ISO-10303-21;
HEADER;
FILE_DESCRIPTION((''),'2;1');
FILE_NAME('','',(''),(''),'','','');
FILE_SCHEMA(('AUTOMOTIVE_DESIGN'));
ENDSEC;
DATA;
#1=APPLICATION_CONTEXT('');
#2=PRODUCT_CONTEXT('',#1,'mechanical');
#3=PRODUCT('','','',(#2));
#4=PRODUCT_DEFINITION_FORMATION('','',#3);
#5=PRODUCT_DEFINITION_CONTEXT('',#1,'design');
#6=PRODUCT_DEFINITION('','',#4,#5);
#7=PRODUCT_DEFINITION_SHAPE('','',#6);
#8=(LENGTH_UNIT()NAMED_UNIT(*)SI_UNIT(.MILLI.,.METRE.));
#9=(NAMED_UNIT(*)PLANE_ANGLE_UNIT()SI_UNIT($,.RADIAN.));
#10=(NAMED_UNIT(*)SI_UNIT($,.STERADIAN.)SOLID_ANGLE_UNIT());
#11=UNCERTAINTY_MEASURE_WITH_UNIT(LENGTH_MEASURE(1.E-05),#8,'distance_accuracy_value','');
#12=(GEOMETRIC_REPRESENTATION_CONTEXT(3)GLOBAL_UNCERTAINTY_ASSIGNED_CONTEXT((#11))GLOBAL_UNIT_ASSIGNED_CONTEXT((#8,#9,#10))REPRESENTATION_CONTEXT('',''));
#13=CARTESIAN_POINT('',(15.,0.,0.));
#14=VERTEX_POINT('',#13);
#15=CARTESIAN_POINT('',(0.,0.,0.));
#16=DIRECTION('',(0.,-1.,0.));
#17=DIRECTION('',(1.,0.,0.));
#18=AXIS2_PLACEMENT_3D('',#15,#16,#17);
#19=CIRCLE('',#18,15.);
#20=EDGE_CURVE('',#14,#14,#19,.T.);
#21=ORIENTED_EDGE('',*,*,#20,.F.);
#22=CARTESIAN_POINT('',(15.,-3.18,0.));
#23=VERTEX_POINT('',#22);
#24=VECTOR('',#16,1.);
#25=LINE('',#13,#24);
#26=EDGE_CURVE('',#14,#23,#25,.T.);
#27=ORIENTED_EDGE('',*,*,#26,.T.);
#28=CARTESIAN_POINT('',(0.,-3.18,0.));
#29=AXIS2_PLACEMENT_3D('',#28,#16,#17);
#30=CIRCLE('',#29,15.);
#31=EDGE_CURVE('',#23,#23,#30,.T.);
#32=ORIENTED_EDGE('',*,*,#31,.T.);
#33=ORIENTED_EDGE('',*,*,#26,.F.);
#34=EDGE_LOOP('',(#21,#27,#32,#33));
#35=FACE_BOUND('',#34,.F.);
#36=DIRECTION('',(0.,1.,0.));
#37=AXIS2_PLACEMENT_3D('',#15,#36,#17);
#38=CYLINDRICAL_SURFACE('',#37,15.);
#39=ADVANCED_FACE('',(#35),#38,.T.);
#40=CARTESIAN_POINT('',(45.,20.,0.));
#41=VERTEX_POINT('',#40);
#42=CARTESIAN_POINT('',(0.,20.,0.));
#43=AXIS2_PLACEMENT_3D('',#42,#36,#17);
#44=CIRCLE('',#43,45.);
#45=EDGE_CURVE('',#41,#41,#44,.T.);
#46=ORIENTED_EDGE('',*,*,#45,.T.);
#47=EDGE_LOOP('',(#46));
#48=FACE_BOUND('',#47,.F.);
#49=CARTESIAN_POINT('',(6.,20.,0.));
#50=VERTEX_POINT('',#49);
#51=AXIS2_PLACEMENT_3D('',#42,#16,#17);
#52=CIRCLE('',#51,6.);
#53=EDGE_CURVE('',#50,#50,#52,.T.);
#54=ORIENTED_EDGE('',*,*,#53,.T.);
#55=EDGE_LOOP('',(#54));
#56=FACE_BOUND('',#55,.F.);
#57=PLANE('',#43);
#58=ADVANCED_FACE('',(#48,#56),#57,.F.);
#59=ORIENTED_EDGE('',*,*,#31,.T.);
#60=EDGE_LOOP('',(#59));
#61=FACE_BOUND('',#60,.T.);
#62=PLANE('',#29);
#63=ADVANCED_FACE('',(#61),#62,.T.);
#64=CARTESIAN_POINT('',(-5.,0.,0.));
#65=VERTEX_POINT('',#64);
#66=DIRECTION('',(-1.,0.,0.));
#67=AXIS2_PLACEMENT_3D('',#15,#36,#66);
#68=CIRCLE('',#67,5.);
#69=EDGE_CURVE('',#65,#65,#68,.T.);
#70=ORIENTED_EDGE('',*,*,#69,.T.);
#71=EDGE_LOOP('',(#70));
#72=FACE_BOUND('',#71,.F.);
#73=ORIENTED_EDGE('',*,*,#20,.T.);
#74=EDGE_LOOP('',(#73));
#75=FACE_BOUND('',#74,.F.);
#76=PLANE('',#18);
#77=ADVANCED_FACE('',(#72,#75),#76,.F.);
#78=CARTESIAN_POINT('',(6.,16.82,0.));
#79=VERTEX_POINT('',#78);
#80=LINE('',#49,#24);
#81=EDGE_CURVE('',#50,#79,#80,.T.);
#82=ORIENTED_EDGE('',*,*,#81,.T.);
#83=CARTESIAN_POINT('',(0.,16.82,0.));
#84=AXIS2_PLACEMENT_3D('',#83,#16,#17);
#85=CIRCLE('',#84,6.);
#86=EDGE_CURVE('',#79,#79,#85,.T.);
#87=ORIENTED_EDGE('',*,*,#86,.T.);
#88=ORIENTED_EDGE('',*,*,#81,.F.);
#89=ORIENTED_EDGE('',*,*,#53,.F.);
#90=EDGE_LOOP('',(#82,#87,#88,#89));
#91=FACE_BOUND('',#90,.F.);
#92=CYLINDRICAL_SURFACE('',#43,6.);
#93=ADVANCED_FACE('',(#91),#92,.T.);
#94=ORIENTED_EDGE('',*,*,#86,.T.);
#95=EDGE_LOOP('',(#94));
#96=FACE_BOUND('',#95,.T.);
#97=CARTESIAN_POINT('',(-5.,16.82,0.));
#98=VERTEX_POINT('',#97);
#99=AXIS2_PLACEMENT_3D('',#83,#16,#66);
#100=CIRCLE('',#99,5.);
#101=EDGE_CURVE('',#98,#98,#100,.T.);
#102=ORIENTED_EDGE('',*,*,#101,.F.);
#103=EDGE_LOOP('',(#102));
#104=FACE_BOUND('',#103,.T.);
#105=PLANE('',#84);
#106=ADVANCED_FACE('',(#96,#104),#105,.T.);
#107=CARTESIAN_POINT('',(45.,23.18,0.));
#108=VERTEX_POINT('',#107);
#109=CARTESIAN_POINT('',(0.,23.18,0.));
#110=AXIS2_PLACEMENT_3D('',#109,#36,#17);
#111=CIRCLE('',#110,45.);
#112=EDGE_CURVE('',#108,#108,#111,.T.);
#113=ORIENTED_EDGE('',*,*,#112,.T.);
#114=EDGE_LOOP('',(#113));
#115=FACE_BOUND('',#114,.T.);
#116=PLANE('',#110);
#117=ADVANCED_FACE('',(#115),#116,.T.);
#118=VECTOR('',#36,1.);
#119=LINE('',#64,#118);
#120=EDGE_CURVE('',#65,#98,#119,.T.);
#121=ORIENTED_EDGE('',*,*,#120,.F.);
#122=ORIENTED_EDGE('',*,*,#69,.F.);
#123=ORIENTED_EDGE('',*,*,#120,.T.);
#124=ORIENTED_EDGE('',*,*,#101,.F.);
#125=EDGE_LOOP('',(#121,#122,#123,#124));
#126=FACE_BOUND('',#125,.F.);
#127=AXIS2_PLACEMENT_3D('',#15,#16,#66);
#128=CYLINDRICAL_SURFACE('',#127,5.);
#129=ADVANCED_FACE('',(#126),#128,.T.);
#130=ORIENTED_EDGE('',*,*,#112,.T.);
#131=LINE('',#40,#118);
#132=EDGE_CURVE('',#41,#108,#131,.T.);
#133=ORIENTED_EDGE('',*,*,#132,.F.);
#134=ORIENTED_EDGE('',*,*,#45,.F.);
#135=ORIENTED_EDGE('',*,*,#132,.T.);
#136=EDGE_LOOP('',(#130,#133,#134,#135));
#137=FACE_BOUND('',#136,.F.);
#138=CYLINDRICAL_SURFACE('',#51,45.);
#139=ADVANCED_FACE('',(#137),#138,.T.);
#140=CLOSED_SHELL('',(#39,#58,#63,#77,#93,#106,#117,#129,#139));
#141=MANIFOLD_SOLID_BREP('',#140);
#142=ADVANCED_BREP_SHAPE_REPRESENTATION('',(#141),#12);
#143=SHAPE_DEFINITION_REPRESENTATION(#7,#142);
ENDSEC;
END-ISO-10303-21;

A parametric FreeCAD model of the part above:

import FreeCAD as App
import Part
import Sketcher
from FreeCAD import Vector
Q = App.Units.Quantity

doc = App.newDocument("Part")
params = doc.addObject("Spreadsheet::Sheet", "Params")
for row, (alias, value) in enumerate([
    ("sketch1_diameter", "10 mm"),
    ("pad1_length", "20 mm"),
    ("sketch2_diameter", "90 mm"),
    ("pad2_length", "3.18 mm"),
    ("sketch3_diameter", "30 mm"),
    ("pad3_length", "3.18 mm"),
    ("sketch4_diameter", "12 mm"),
    ("pad4_length", "3.18 mm"),
], start=1):
    params.set(f"A{row}", alias)
    params.set(f"B{row}", "=" + value)
    params.setAlias(f"B{row}", alias)

body = doc.addObject("PartDesign::Body", "Body")

# Sketch on XZ plane
sketch1 = doc.addObject("Sketcher::SketchObject", "Sketch")
body.addObject(sketch1)
sketch1.AttachmentSupport = (doc.XZ_Plane, [""])
sketch1.MapMode = "FlatFace"
sketch1.addGeometry(Part.Circle(Vector(0, 0, 0), Vector(0, 0, 1), 5), False)
sketch1.addConstraint([
    Sketcher.Constraint("Coincident", 0, 3, -1, 1),
    Sketcher.Constraint("Diameter", 0, Q("10 mm")),
])
sketch1.setExpression("Constraints[1]", "Params.sketch1_diameter")
pad1 = doc.addObject("PartDesign::Pad", "Pad")
body.addObject(pad1)
pad1.Profile = sketch1
pad1.setExpression("Length", "Params.pad1_length")
pad1.Reversed = True

# Sketch on XZ plane
sketch2 = doc.addObject("Sketcher::SketchObject", "Sketch001")
body.addObject(sketch2)
sketch2.AttachmentSupport = (doc.XZ_Plane, [""])
sketch2.MapMode = "FlatFace"
sketch2.AttachmentOffset = App.Placement(Vector(0, 0, -20), App.Rotation())
sketch2.addGeometry(Part.Circle(Vector(0, 0, 0), Vector(0, 0, 1), 45), False)
sketch2.addConstraint([
    Sketcher.Constraint("Coincident", 0, 3, -1, 1),
    Sketcher.Constraint("Diameter", 0, Q("90 mm")),
])
sketch2.setExpression("Constraints[1]", "Params.sketch2_diameter")
pad2 = doc.addObject("PartDesign::Pad", "Pad001")
body.addObject(pad2)
pad2.Profile = sketch2
pad2.setExpression("Length", "Params.pad2_length")
pad2.Reversed = True

# Sketch on XZ plane
sketch3 = doc.addObject("Sketcher::SketchObject", "Sketch002")
body.addObject(sketch3)
sketch3.AttachmentSupport = (doc.XZ_Plane, [""])
sketch3.MapMode = "FlatFace"
sketch3.addGeometry(Part.Circle(Vector(0, 0, 0), Vector(0, 0, 1), 15), False)
sketch3.addConstraint([
    Sketcher.Constraint("Coincident", 0, 3, -1, 1),
    Sketcher.Constraint("Diameter", 0, Q("30 mm")),
])
sketch3.setExpression("Constraints[1]", "Params.sketch3_diameter")
pad3 = doc.addObject("PartDesign::Pad", "Pad002")
body.addObject(pad3)
pad3.Profile = sketch3
pad3.setExpression("Length", "Params.pad3_length")

# Sketch on XZ plane
sketch4 = doc.addObject("Sketcher::SketchObject", "Sketch003")
body.addObject(sketch4)
sketch4.AttachmentSupport = (doc.XZ_Plane, [""])
sketch4.MapMode = "FlatFace"
sketch4.AttachmentOffset = App.Placement(Vector(0, 0, -20), App.Rotation())
sketch4.addGeometry(Part.Circle(Vector(0, 0, 0), Vector(0, 0, 1), 6), False)
sketch4.addConstraint([
    Sketcher.Constraint("Coincident", 0, 3, -1, 1),
    Sketcher.Constraint("Diameter", 0, Q("12 mm")),
])
sketch4.setExpression("Constraints[1]", "Params.sketch4_diameter")
pad4 = doc.addObject("PartDesign::Pad", "Pad003")
body.addObject(pad4)
pad4.Profile = sketch4
pad4.setExpression("Length", "Params.pad4_length")

doc.recompute()
